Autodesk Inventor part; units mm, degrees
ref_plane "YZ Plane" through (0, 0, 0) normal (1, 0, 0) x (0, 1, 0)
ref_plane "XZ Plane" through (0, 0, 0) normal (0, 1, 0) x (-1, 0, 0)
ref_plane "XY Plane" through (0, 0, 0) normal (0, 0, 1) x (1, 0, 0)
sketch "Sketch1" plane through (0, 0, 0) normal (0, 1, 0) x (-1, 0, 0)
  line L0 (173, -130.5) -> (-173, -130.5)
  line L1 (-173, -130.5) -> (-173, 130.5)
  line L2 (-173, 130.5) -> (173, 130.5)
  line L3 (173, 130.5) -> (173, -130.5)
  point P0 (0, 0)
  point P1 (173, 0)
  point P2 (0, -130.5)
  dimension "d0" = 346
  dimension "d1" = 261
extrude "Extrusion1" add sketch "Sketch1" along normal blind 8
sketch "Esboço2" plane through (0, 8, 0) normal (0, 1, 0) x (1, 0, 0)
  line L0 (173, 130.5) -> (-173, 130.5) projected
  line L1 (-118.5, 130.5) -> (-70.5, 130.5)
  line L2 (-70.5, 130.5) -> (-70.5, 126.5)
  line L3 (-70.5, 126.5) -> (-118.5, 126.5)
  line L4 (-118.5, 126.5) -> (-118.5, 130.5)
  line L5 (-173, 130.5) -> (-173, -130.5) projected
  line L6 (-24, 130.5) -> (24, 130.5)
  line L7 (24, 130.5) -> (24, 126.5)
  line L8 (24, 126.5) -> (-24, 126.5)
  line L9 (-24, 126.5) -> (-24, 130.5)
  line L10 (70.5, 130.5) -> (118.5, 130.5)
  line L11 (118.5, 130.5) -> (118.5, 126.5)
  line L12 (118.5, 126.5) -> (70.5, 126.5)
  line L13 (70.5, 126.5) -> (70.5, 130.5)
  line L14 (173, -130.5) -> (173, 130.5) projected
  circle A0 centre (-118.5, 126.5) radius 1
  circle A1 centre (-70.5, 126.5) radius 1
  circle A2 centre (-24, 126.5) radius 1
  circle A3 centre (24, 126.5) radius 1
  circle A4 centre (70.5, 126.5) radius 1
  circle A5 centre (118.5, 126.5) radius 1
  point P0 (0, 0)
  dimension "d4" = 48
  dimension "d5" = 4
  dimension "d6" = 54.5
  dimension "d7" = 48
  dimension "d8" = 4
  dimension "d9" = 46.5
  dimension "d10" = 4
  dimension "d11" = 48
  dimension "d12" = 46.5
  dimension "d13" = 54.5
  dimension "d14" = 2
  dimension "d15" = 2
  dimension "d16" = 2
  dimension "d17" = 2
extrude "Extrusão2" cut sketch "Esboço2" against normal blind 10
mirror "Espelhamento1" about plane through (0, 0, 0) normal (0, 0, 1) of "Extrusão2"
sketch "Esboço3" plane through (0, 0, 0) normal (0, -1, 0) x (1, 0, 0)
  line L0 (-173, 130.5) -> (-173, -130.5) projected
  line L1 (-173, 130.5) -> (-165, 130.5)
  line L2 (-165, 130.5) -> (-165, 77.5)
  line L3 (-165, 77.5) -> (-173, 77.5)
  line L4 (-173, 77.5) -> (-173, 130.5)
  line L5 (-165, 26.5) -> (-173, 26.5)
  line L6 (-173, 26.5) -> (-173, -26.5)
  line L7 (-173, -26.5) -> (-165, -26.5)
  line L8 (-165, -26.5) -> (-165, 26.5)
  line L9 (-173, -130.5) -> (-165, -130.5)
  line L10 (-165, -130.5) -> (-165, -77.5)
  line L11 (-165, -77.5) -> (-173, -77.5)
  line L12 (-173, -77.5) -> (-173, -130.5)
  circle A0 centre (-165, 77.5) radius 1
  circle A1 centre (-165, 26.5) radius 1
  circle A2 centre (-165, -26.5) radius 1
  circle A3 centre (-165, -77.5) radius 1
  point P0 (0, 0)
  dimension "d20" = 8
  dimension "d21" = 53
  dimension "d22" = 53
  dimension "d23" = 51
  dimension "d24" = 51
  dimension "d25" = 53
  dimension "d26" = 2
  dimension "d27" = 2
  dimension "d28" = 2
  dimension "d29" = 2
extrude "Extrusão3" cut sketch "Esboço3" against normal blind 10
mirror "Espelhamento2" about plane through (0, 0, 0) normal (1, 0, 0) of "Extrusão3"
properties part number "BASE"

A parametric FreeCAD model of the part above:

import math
import FreeCAD as App
import Part
import Sketcher
from FreeCAD import Vector

doc = App.newDocument("Part")
body = doc.addObject("PartDesign::Body", "Body")

# Sketch on XZ plane
sketch1 = doc.addObject("Sketcher::SketchObject", "Sketch")
body.addObject(sketch1)
sketch1.AttachmentSupport = (doc.XZ_Plane, [""])
sketch1.MapMode = "FlatFace"
sketch1.addGeometry([
    Part.LineSegment(Vector(173, -130.5, 0), Vector(-173, -130.5, 0)),
    Part.LineSegment(Vector(-173, -130.5, 0), Vector(-173, 130.5, 0)),
    Part.LineSegment(Vector(-173, 130.5, 0), Vector(173, 130.5, 0)),
    Part.LineSegment(Vector(173, 130.5, 0), Vector(173, -130.5, 0)),
], False)
sketch1.addConstraint([
    Sketcher.Constraint("Coincident", 0, 2, 1, 1),
    Sketcher.Constraint("Coincident", 1, 2, 2, 1),
    Sketcher.Constraint("Coincident", 2, 2, 3, 1),
    Sketcher.Constraint("Coincident", 3, 2, 0, 1),
    Sketcher.Constraint("Horizontal", 0),
    Sketcher.Constraint("Vertical", 1),
    Sketcher.Constraint("Horizontal", 2),
    Sketcher.Constraint("Vertical", 3),
    Sketcher.Constraint("Symmetric", 0, 2, 2, 2, -1, 1),
    Sketcher.Constraint("DistanceX", 0, 2, 0, 1, 346.0),
    Sketcher.Constraint("DistanceY", 1, 1, 1, 2, 261.0),
])
pad1 = doc.addObject("PartDesign::Pad", "Pad")
body.addObject(pad1)
pad1.Profile = sketch1
pad1.Length = 8
pad1.Reversed = True

# Sketch on XZ plane
sketch2 = doc.addObject("Sketcher::SketchObject", "Sketch001")
body.addObject(sketch2)
sketch2.AttachmentSupport = (doc.XZ_Plane, [""])
sketch2.MapMode = "FlatFace"
sketch2.AttachmentOffset = App.Placement(Vector(0, 0, -8), App.Rotation())
sketch2.addGeometry([
    Part.LineSegment(Vector(118.5, -127.5, 0), Vector(118.5, -130.5, 0)),  # 0
    Part.LineSegment(Vector(118.5, -130.5, 0), Vector(70.5, -130.5, 0)),  # 1
    Part.LineSegment(Vector(70.5, -130.5, 0), Vector(70.5, -127.5, 0)),  # 2
    Part.ArcOfCircle(Part.Circle(Vector(70.5, -126.5, 0), Vector(0, 0, 1), 1), math.radians(0), math.radians(270)),  # 3
    Part.LineSegment(Vector(71.5, -126.5, 0), Vector(117.5, -126.5, 0)),  # 4
    Part.ArcOfCircle(Part.Circle(Vector(118.5, -126.5, 0), Vector(0, 0, 1), 1), math.radians(-90), math.radians(180)),  # 5
    Part.LineSegment(Vector(-70.5, -127.5, 0), Vector(-70.5, -130.5, 0)),  # 6
    Part.LineSegment(Vector(-70.5, -130.5, 0), Vector(-118.5, -130.5, 0)),  # 7
    Part.LineSegment(Vector(-118.5, -130.5, 0), Vector(-118.5, -127.5, 0)),  # 8
    Part.ArcOfCircle(Part.Circle(Vector(-118.5, -126.5, 0), Vector(0, 0, 1), 1), math.radians(0), math.radians(270)),  # 9
    Part.LineSegment(Vector(-117.5, -126.5, 0), Vector(-71.5, -126.5, 0)),  # 10
    Part.ArcOfCircle(Part.Circle(Vector(-70.5, -126.5, 0), Vector(0, 0, 1), 1), math.radians(-90), math.radians(180)),  # 11
    Part.LineSegment(Vector(24, -127.5, 0), Vector(24, -130.5, 0)),  # 12
    Part.LineSegment(Vector(24, -130.5, 0), Vector(-24, -130.5, 0)),  # 13
    Part.LineSegment(Vector(-24, -130.5, 0), Vector(-24, -127.5, 0)),  # 14
    Part.ArcOfCircle(Part.Circle(Vector(-24, -126.5, 0), Vector(0, 0, 1), 1), math.radians(0), math.radians(270)),  # 15
    Part.LineSegment(Vector(-23, -126.5, 0), Vector(23, -126.5, 0)),  # 16
    Part.ArcOfCircle(Part.Circle(Vector(24, -126.5, 0), Vector(0, 0, 1), 1), math.radians(-90), math.radians(180)),  # 17
], False)
sketch2.addConstraint([
    Sketcher.Constraint("Coincident", 0, 2, 1, 1),
    Sketcher.Constraint("Coincident", 1, 2, 2, 1),
    Sketcher.Constraint("Coincident", 2, 2, 3, 2),
    Sketcher.Constraint("Coincident", 3, 1, 4, 1),
    Sketcher.Constraint("Coincident", 4, 2, 5, 2),
    Sketcher.Constraint("Coincident", 5, 1, 0, 1),
    Sketcher.Constraint("Coincident", 6, 2, 7, 1),
    Sketcher.Constraint("Coincident", 7, 2, 8, 1),
    Sketcher.Constraint("Coincident", 8, 2, 9, 2),
    Sketcher.Constraint("Coincident", 9, 1, 10, 1),
    Sketcher.Constraint("Coincident", 10, 2, 11, 2),
    Sketcher.Constraint("Coincident", 11, 1, 6, 1),
    Sketcher.Constraint("Coincident", 12, 2, 13, 1),
    Sketcher.Constraint("Coincident", 13, 2, 14, 1),
    Sketcher.Constraint("Coincident", 14, 2, 15, 2),
    Sketcher.Constraint("Coincident", 15, 1, 16, 1),
    Sketcher.Constraint("Coincident", 16, 2, 17, 2),
    Sketcher.Constraint("Coincident", 17, 1, 12, 1),
    Sketcher.Constraint("Vertical", 0),
    Sketcher.Constraint("Horizontal", 1),
    Sketcher.Constraint("Vertical", 2),
    Sketcher.Constraint("Horizontal", 4),
    Sketcher.Constraint("Vertical", 6),
    Sketcher.Constraint("Horizontal", 7),
    Sketcher.Constraint("Vertical", 8),
    Sketcher.Constraint("Horizontal", 10),
    Sketcher.Constraint("Vertical", 12),
    Sketcher.Constraint("Horizontal", 13),
    Sketcher.Constraint("Vertical", 14),
    Sketcher.Constraint("Horizontal", 16),
    Sketcher.Constraint("Equal", 3, 5),
    Sketcher.Constraint("Equal", 5, 9),
    Sketcher.Constraint("Equal", 9, 11),
    Sketcher.Constraint("Equal", 11, 15),
    Sketcher.Constraint("Equal", 15, 17),
    Sketcher.Constraint("Symmetric", 5, 3, 9, 3, -2),
    Sketcher.Constraint("Symmetric", 3, 3, 11, 3, -2),
    Sketcher.Constraint("Symmetric", 15, 3, 17, 3, -2),
    Sketcher.Constraint("Symmetric", 1, 2, 6, 2, -2),
    Sketcher.Constraint("Horizontal", 3, 3, 5, 3),
    Sketcher.Constraint("Horizontal", 11, 3, 15, 3),
    Sketcher.Constraint("Horizontal", 17, 3, 3, 1),
    Sketcher.Constraint("Horizontal", 4, 2, 9, 1),
    Sketcher.Constraint("Horizontal", 7, 2, 12, 2),
    Sketcher.Constraint("Horizontal", 10, 2, 15, 1),
    Sketcher.Constraint("Vertical", 5, 3, 0, 2),
    Sketcher.Constraint("Vertical", 3, 3, 1, 2),
    Sketcher.Constraint("Vertical", 9, 3, 7, 2),
    Sketcher.Constraint("Vertical", 17, 3, 12, 2),
    Sketcher.Constraint("Vertical", 15, 3, 13, 2),
    Sketcher.Constraint("Equal", 7, 13),
    Sketcher.Constraint("Radius", 3, 1.0),
    Sketcher.Constraint("DistanceX", 1, 2, 1, 1, 48.0),
    Sketcher.Constraint("DistanceY", 0, 2, 5, 3, 4.0),
    Sketcher.Constraint("DistanceX", 11, 3, 15, 3, 46.5),
    Sketcher.Constraint("DistanceY", 3, 3, -1, 1, 126.5),
])
pocket1 = doc.addObject("PartDesign::Pocket", "Pocket")
body.addObject(pocket1)
pocket1.Profile = sketch2
pocket1.Length = 10
pocket1.Reversed = True
doc.recompute()

mirrored = doc.addObject("PartDesign::Mirrored", "Mirrored")
body.addObject(mirrored)
mirrored.Originals = [pocket1]
mirrored.MirrorPlane = (doc.XY_Plane, [""])
body.Tip = mirrored

# Sketch on XZ plane
sketch3 = doc.addObject("Sketcher::SketchObject", "Sketch002")
body.addObject(sketch3)
sketch3.AttachmentSupport = (doc.XZ_Plane, [""])
sketch3.MapMode = "FlatFace"
sketch3.addGeometry([
    Part.LineSegment(Vector(-165, 130.5, 0), Vector(-173, 130.5, 0)),  # 0
    Part.LineSegment(Vector(-173, 130.5, 0), Vector(-173, 77.5, 0)),  # 1
    Part.LineSegment(Vector(-173, 77.5, 0), Vector(-166, 77.5, 0)),  # 2
    Part.ArcOfCircle(Part.Circle(Vector(-165, 77.5, 0), Vector(0, 0, 1), 1), math.radians(180), math.radians(450)),  # 3
    Part.LineSegment(Vector(-165, 78.5, 0), Vector(-165, 130.5, 0)),  # 4
    Part.LineSegment(Vector(-166, -77.5, 0), Vector(-173, -77.5, 0)),  # 5
    Part.LineSegment(Vector(-173, -77.5, 0), Vector(-173, -130.5, 0)),  # 6
    Part.LineSegment(Vector(-173, -130.5, 0), Vector(-165, -130.5, 0)),  # 7
    Part.LineSegment(Vector(-165, -130.5, 0), Vector(-165, -78.5, 0)),  # 8
    Part.ArcOfCircle(Part.Circle(Vector(-165, -77.5, 0), Vector(0, 0, 1), 1), math.radians(-90), math.radians(180)),  # 9
    Part.LineSegment(Vector(-166, 26.5, 0), Vector(-173, 26.5, 0)),  # 10
    Part.LineSegment(Vector(-173, 26.5, 0), Vector(-173, -26.5, 0)),  # 11
    Part.LineSegment(Vector(-173, -26.5, 0), Vector(-166, -26.5, 0)),  # 12
    Part.ArcOfCircle(Part.Circle(Vector(-165, -26.5, 0), Vector(0, 0, 1), 1), math.radians(180), math.radians(450)),  # 13
    Part.LineSegment(Vector(-165, -25.5, 0), Vector(-165, 25.5, 0)),  # 14
    Part.ArcOfCircle(Part.Circle(Vector(-165, 26.5, 0), Vector(0, 0, 1), 1), math.radians(-90), math.radians(180)),  # 15
], False)
sketch3.addConstraint([
    Sketcher.Constraint("Coincident", 0, 2, 1, 1),
    Sketcher.Constraint("Coincident", 1, 2, 2, 1),
    Sketcher.Constraint("Coincident", 2, 2, 3, 1),
    Sketcher.Constraint("Coincident", 3, 2, 4, 1),
    Sketcher.Constraint("Coincident", 4, 2, 0, 1),
    Sketcher.Constraint("Coincident", 5, 2, 6, 1),
    Sketcher.Constraint("Coincident", 6, 2, 7, 1),
    Sketcher.Constraint("Coincident", 7, 2, 8, 1),
    Sketcher.Constraint("Coincident", 8, 2, 9, 1),
    Sketcher.Constraint("Coincident", 9, 2, 5, 1),
    Sketcher.Constraint("Coincident", 10, 2, 11, 1),
    Sketcher.Constraint("Coincident", 11, 2, 12, 1),
    Sketcher.Constraint("Coincident", 12, 2, 13, 1),
    Sketcher.Constraint("Coincident", 13, 2, 14, 1),
    Sketcher.Constraint("Coincident", 14, 2, 15, 1),
    Sketcher.Constraint("Coincident", 15, 2, 10, 1),
    Sketcher.Constraint("Horizontal", 0),
    Sketcher.Constraint("Vertical", 1),
    Sketcher.Constraint("Horizontal", 2),
    Sketcher.Constraint("Vertical", 4),
    Sketcher.Constraint("Horizontal", 5),
    Sketcher.Constraint("Vertical", 6),
    Sketcher.Constraint("Horizontal", 7),
    Sketcher.Constraint("Vertical", 8),
    Sketcher.Constraint("Horizontal", 10),
    Sketcher.Constraint("Vertical", 11),
    Sketcher.Constraint("Horizontal", 12),
    Sketcher.Constraint("Vertical", 14),
    Sketcher.Constraint("Equal", 3, 9),
    Sketcher.Constraint("Equal", 9, 13),
    Sketcher.Constraint("Equal", 13, 15),
    Sketcher.Constraint("Symmetric", 3, 3, 9, 3, -1),
    Sketcher.Constraint("Symmetric", 13, 3, 15, 3, -1),
    Sketcher.Constraint("Symmetric", 1, 2, 5, 2, -1),
    Sketcher.Constraint("Symmetric", 4, 2, 7, 2, -1),
    Sketcher.Constraint("Horizontal", 3, 3, 1, 2),
    Sketcher.Constraint("Horizontal", 15, 3, 10, 2),
    Sketcher.Constraint("Horizontal", 13, 3, 11, 2),
    Sketcher.Constraint("Vertical", 9, 3, 13, 3),
    Sketcher.Constraint("Vertical", 15, 3, 3, 2),
    Sketcher.Constraint("Vertical", 6, 2, 10, 2),
    Sketcher.Constraint("Vertical", 8, 2, 13, 2),
    Sketcher.Constraint("Equal", 6, 11),
    Sketcher.Constraint("Radius", 3, 1.0),
    Sketcher.Constraint("DistanceX", 0, 2, 0, 1, 8.0),
    Sketcher.Constraint("DistanceY", 1, 2, 1, 1, 53.0),
    Sketcher.Constraint("DistanceY", 9, 3, 13, 3, 51.0),
    Sketcher.Constraint("DistanceX", 3, 3, -1, 1, 165.0),
])
pocket2 = doc.addObject("PartDesign::Pocket", "Pocket001")
body.addObject(pocket2)
pocket2.Profile = sketch3
pocket2.Length = 10
doc.recompute()

mirrored2 = doc.addObject("PartDesign::Mirrored", "Mirrored001")
body.addObject(mirrored2)
mirrored2.Originals = [pocket2]
mirrored2.MirrorPlane = (doc.YZ_Plane, [""])
body.Tip = mirrored2

doc.recompute()
